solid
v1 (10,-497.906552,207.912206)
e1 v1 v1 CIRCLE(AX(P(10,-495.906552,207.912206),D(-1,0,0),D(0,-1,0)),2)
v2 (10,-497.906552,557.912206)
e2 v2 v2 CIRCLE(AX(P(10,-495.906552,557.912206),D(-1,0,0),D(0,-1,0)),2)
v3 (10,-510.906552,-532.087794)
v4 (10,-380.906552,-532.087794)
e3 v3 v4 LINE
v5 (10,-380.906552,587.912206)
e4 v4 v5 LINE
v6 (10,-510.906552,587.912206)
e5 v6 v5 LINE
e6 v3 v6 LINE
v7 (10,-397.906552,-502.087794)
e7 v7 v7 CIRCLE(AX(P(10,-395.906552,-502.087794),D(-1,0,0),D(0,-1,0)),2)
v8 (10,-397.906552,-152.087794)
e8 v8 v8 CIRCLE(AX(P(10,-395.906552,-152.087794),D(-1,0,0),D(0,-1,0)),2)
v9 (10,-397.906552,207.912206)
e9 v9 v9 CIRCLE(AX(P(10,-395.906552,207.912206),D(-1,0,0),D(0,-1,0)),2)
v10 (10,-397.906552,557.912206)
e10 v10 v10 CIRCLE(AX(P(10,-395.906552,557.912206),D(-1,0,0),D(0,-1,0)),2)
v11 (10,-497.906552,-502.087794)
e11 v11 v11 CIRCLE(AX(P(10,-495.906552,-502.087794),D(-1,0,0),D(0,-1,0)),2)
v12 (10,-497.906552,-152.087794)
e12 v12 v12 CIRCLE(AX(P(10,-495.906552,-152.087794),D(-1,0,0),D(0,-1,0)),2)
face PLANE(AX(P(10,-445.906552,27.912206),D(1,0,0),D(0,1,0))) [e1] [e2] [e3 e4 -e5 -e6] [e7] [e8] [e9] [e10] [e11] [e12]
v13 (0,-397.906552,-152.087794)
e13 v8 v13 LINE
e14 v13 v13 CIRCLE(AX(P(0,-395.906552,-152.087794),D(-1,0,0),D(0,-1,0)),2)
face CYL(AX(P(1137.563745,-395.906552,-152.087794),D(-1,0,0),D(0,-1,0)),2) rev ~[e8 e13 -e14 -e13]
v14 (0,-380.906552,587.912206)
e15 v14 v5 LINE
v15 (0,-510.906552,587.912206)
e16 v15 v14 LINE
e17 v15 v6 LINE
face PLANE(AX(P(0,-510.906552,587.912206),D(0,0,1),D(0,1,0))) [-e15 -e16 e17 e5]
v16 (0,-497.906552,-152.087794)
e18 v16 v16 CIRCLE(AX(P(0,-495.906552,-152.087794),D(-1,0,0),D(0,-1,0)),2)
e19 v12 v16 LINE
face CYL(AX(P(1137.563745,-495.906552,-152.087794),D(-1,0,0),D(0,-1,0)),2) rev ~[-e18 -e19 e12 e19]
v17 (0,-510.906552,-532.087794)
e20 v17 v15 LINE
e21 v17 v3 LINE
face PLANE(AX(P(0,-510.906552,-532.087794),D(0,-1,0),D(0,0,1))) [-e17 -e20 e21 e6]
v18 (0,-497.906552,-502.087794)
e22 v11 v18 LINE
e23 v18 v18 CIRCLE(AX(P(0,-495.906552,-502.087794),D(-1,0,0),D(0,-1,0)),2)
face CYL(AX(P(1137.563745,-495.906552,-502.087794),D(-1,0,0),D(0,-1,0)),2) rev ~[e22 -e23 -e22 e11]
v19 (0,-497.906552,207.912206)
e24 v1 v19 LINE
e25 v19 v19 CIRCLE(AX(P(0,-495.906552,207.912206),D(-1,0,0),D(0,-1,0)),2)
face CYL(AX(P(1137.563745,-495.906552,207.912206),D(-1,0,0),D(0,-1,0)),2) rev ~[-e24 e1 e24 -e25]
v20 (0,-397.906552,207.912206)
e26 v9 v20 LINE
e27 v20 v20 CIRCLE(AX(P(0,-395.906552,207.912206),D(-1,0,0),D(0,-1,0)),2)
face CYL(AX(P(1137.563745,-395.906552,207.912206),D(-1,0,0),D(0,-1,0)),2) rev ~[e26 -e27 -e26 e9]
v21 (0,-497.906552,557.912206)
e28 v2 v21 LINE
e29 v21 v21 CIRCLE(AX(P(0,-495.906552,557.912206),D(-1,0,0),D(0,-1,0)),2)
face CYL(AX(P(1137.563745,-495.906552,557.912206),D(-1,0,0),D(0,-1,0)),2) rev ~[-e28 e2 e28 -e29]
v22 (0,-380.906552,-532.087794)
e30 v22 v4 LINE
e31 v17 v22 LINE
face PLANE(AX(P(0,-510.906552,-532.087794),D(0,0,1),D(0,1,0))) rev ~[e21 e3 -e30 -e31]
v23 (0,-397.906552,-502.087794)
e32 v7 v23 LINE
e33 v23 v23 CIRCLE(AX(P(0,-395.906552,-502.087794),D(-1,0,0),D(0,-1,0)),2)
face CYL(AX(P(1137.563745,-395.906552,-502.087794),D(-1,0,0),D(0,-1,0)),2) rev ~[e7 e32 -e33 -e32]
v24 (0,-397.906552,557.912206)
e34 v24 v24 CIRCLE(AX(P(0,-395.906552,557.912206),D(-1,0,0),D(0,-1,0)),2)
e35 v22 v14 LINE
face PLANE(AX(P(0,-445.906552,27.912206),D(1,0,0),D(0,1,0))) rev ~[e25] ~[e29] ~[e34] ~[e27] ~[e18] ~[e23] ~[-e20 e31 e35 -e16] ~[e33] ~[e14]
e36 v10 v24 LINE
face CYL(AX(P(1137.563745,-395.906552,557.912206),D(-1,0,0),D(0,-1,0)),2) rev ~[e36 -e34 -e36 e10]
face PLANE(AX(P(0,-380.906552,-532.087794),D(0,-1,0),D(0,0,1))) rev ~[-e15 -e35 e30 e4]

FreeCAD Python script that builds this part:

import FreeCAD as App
import Part
import Sketcher

V = App.Vector

doc = App.newDocument("Part")
params = doc.addObject("Spreadsheet::Sheet", "Params")
for row, (alias, value) in enumerate([
    ("sketch1_width", "130 mm"),
    ("sketch1_height", "1120 mm"),
    ("pad1_length", "10 mm"),
    ("sketch2_diameter", "4 mm"),
    ("hole_diameter", "4 mm"),
], start=1):
    params.set(f"A{row}", alias)
    params.set(f"B{row}", "=" + value)
    params.setAlias(f"B{row}", alias)

body = doc.addObject("PartDesign::Body", "Body")

# Sketch on YZ plane
sketch1 = doc.addObject("Sketcher::SketchObject", "Sketch")
body.addObject(sketch1)
sketch1.AttachmentSupport = (doc.YZ_Plane, [""])
sketch1.MapMode = "FlatFace"
sketch1.addGeometry(Part.LineSegment(V(-511, 588, 0), V(-511, -532, 0)), False)
sketch1.addGeometry(Part.LineSegment(V(-511, -532, 0), V(-381, -532, 0)), False)
sketch1.addGeometry(Part.LineSegment(V(-381, -532, 0), V(-381, 588, 0)), False)
sketch1.addGeometry(Part.LineSegment(V(-381, 588, 0), V(-511, 588, 0)), False)
sketch1.addConstraint(Sketcher.Constraint("Coincident", 0, 2, 1, 1))
sketch1.addConstraint(Sketcher.Constraint("Coincident", 1, 2, 2, 1))
sketch1.addConstraint(Sketcher.Constraint("Coincident", 2, 2, 3, 1))
sketch1.addConstraint(Sketcher.Constraint("Coincident", 3, 2, 0, 1))
sketch1.addConstraint(Sketcher.Constraint("Vertical", 0))
sketch1.addConstraint(Sketcher.Constraint("Horizontal", 1))
sketch1.addConstraint(Sketcher.Constraint("Vertical", 2))
sketch1.addConstraint(Sketcher.Constraint("Horizontal", 3))
sketch1.addConstraint(Sketcher.Constraint("DistanceX", 1, 1, 1, 2, 130.0))
sketch1.addConstraint(Sketcher.Constraint("DistanceY", 0, 2, 0, 1, 1120.0))
sketch1.addConstraint(Sketcher.Constraint("DistanceX", 0, 2, -1, 1, 510.906552))
sketch1.addConstraint(Sketcher.Constraint("DistanceY", 0, 2, -1, 1, 532.087794))
sketch1.setExpression("Constraints[8]", "Params.sketch1_width")
sketch1.setExpression("Constraints[9]", "Params.sketch1_height")
pad1 = doc.addObject("PartDesign::Pad", "Pad")
body.addObject(pad1)
pad1.Profile = sketch1
pad1.setExpression("Length", "Params.pad1_length")

# Sketch on YZ plane
sketch2 = doc.addObject("Sketcher::SketchObject", "Sketch001")
body.addObject(sketch2)
sketch2.AttachmentSupport = (doc.YZ_Plane, [""])
sketch2.MapMode = "FlatFace"
sketch2.AttachmentOffset = App.Placement(V(0, 0, 10), App.Rotation())
sketch2.addGeometry(Part.Circle(V(-495.9, 557.9, 0), V(0, 0, 1), 2), False)
sketch2.addGeometry(Part.Circle(V(-395.9, 557.9, 0), V(0, 0, 1), 2), False)
sketch2.addGeometry(Part.Circle(V(-395.9, 207.9, 0), V(0, 0, 1), 2), False)
sketch2.addGeometry(Part.Circle(V(-495.9, 207.9, 0), V(0, 0, 1), 2), False)
sketch2.addGeometry(Part.Circle(V(-395.9, -152.1, 0), V(0, 0, 1), 2), False)
sketch2.addGeometry(Part.Circle(V(-495.9, -152.1, 0), V(0, 0, 1), 2), False)
sketch2.addGeometry(Part.Circle(V(-495.9, -502.1, 0), V(0, 0, 1), 2), False)
sketch2.addGeometry(Part.Circle(V(-395.9, -502.1, 0), V(0, 0, 1), 2), False)
sketch2.addConstraint(Sketcher.Constraint("Equal", 0, 1))
sketch2.addConstraint(Sketcher.Constraint("Equal", 1, 2))
sketch2.addConstraint(Sketcher.Constraint("Equal", 2, 3))
sketch2.addConstraint(Sketcher.Constraint("Equal", 3, 4))
sketch2.addConstraint(Sketcher.Constraint("Equal", 4, 5))
sketch2.addConstraint(Sketcher.Constraint("Equal", 5, 6))
sketch2.addConstraint(Sketcher.Constraint("Equal", 6, 7))
sketch2.addConstraint(Sketcher.Constraint("Horizontal", 0, 3, 1, 3))
sketch2.addConstraint(Sketcher.Constraint("Horizontal", 2, 3, 3, 3))
sketch2.addConstraint(Sketcher.Constraint("Horizontal", 4, 3, 5, 3))
sketch2.addConstraint(Sketcher.Constraint("Horizontal", 6, 3, 7, 3))
sketch2.addConstraint(Sketcher.Constraint("Vertical", 1, 3, 2, 3))
sketch2.addConstraint(Sketcher.Constraint("Vertical", 0, 3, 3, 3))
sketch2.addConstraint(Sketcher.Constraint("Vertical", 2, 3, 4, 3))
sketch2.addConstraint(Sketcher.Constraint("Vertical", 3, 3, 5, 3))
sketch2.addConstraint(Sketcher.Constraint("Vertical", 5, 3, 6, 3))
sketch2.addConstraint(Sketcher.Constraint("Vertical", 4, 3, 7, 3))
sketch2.addConstraint(Sketcher.Constraint("Diameter", 0, 4.0))
sketch2.addConstraint(Sketcher.Constraint("DistanceX", 0, 3, 1, 3, 100.0))
sketch2.addConstraint(Sketcher.Constraint("DistanceY", 2, 3, 1, 3, 350.0))
sketch2.addConstraint(Sketcher.Constraint("DistanceY", 4, 3, 2, 3, 360.0))
sketch2.addConstraint(Sketcher.Constraint("DistanceY", 6, 3, 5, 3, 350.0))
sketch2.addConstraint(Sketcher.Constraint("DistanceX", 0, 3, -1, 1, 495.906552))
sketch2.addConstraint(Sketcher.Constraint("DistanceY", -1, 1, 0, 3, 557.912206))
sketch2.setExpression("Constraints[17]", "Params.sketch2_diameter")
doc.recompute()
hole = doc.addObject("PartDesign::Hole", "Hole")
body.addObject(hole)
hole.Profile = sketch2
hole.ThreadType = "None"
hole.setExpression("Diameter", "Params.hole_diameter")
hole.DepthType = "ThroughAll"

doc.recompute()
